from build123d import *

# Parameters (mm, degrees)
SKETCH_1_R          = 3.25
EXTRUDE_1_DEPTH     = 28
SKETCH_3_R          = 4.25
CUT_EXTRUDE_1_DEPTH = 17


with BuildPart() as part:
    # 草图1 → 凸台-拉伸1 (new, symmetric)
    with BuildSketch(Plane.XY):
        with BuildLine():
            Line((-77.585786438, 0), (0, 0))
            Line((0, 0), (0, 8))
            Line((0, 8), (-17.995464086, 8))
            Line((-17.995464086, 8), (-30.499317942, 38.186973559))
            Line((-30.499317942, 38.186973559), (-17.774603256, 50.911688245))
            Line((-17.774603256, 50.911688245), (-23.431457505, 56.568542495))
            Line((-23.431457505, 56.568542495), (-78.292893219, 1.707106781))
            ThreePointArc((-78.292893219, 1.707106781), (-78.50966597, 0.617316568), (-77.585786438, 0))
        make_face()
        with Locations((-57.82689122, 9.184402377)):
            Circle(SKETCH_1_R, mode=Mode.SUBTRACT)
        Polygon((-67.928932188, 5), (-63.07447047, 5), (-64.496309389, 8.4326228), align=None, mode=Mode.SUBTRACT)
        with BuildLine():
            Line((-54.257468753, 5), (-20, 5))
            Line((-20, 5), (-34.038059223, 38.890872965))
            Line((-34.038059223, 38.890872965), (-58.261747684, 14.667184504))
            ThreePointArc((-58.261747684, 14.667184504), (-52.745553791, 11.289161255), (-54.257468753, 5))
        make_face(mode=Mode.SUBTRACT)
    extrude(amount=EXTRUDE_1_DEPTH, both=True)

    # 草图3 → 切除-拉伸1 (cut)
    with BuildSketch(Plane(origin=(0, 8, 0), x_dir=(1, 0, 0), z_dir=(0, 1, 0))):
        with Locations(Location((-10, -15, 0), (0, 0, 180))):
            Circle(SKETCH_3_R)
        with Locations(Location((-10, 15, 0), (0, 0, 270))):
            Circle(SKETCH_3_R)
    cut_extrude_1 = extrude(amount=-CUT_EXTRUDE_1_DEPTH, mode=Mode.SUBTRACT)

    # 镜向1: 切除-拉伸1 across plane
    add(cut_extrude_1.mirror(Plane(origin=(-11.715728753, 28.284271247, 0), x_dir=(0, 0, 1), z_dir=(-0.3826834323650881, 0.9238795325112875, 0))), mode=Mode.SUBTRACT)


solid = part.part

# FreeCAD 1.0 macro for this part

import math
import FreeCAD as App
import Part
import Sketcher
from FreeCAD import Vector
Q = App.Units.Quantity

doc = App.newDocument("Part")
params = doc.addObject("Spreadsheet::Sheet", "Params")
for row, (alias, value) in enumerate([
    ("sketch1_radius", "1 mm"),
    ("sketch1_diameter", "6.5 mm"),
    ("sketch1_radius2", "5.5 mm"),
    ("sketch1_height", "8 mm"),
    ("sketch1_length", "8 mm"),
    ("pad1_length", "56 mm"),
    ("sketch2_diameter", "8.5 mm"),
    ("pocket1_length", "17 mm"),
], start=1):
    params.set(f"A{row}", alias)
    params.set(f"B{row}", "=" + value)
    params.setAlias(f"B{row}", alias)

body = doc.addObject("PartDesign::Body", "Body")

sketch1 = body.newObject("Sketcher::SketchObject", "Sketch")
sketch1.AttachmentSupport = (doc.getObject("XY_Plane"), [""])
sketch1.MapMode = "FlatFace"
sketch1.addGeometry(Part.LineSegment(Vector(-77.585786, 0, 0), Vector(0, 0, 0)), False)
sketch1.addGeometry(Part.LineSegment(Vector(0, 0, 0), Vector(0, 8, 0)), False)
sketch1.addGeometry(Part.LineSegment(Vector(0, 8, 0), Vector(-17.995464, 8, 0)), False)
sketch1.addGeometry(Part.LineSegment(Vector(-17.995464, 8, 0), Vector(-30.499318, 38.186974, 0)), False)
sketch1.addGeometry(Part.LineSegment(Vector(-30.499318, 38.186974, 0), Vector(-17.774603, 50.911688, 0)), False)
sketch1.addGeometry(Part.LineSegment(Vector(-17.774603, 50.911688, 0), Vector(-23.431458, 56.568542, 0)), False)
sketch1.addGeometry(Part.LineSegment(Vector(-23.431458, 56.568542, 0), Vector(-78.292893, 1.707107, 0)), False)
sketch1.addGeometry(Part.ArcOfCircle(Part.Circle(Vector(-77.585786, 1, 0), Vector(0, 0, 1), 1), math.radians(135), math.radians(270)), False)
sketch1.addGeometry(Part.LineSegment(Vector(-63.07447, 5, 0), Vector(-67.928932, 5, 0)), False)
sketch1.addGeometry(Part.LineSegment(Vector(-67.928932, 5, 0), Vector(-64.496309, 8.432623, 0)), False)
sketch1.addGeometry(Part.LineSegment(Vector(-64.496309, 8.432623, 0), Vector(-63.07447, 5, 0)), False)
sketch1.addGeometry(Part.Circle(Vector(-57.826891, 9.184402, 0), Vector(0, 0, 1), 3.25), False)
sketch1.addGeometry(Part.LineSegment(Vector(-20, 5, 0), Vector(-54.257469, 5, 0)), False)
sketch1.addGeometry(Part.ArcOfCircle(Part.Circle(Vector(-57.826891, 9.184402, 0), Vector(0, 0, 1), 5.5), math.radians(-49.534813), math.radians(94.534813)), False)
sketch1.addGeometry(Part.LineSegment(Vector(-58.261748, 14.667185, 0), Vector(-34.038059, 38.890873, 0)), False)
sketch1.addGeometry(Part.LineSegment(Vector(-34.038059, 38.890873, 0), Vector(-20, 5, 0)), False)
sketch1.addConstraint(Sketcher.Constraint("Coincident", 0, 2, 1, 1))
sketch1.addConstraint(Sketcher.Constraint("Coincident", 1, 2, 2, 1))
sketch1.addConstraint(Sketcher.Constraint("Coincident", 2, 2, 3, 1))
sketch1.addConstraint(Sketcher.Constraint("Coincident", 3, 2, 4, 1))
sketch1.addConstraint(Sketcher.Constraint("Coincident", 4, 2, 5, 1))
sketch1.addConstraint(Sketcher.Constraint("Coincident", 5, 2, 6, 1))
sketch1.addConstraint(Sketcher.Constraint("Tangent", 6, 2, 7, 1))
sketch1.addConstraint(Sketcher.Constraint("Tangent", 7, 2, 0, 1))
sketch1.addConstraint(Sketcher.Constraint("Coincident", 8, 2, 9, 1))
sketch1.addConstraint(Sketcher.Constraint("Coincident", 9, 2, 10, 1))
sketch1.addConstraint(Sketcher.Constraint("Coincident", 10, 2, 8, 1))
sketch1.addConstraint(Sketcher.Constraint("Coincident", 12, 2, 13, 1))
sketch1.addConstraint(Sketcher.Constraint("Coincident", 13, 2, 14, 1))
sketch1.addConstraint(Sketcher.Constraint("Coincident", 14, 2, 15, 1))
sketch1.addConstraint(Sketcher.Constraint("Coincident", 15, 2, 12, 1))
sketch1.addConstraint(Sketcher.Constraint("Horizontal", 0))
sketch1.addConstraint(Sketcher.Constraint("Vertical", 1))
sketch1.addConstraint(Sketcher.Constraint("Horizontal", 2))
sketch1.addConstraint(Sketcher.Constraint("Horizontal", 8))
sketch1.addConstraint(Sketcher.Constraint("Horizontal", 12))
sketch1.addConstraint(Sketcher.Constraint("Coincident", 0, 2, -1, 1))
sketch1.addConstraint(Sketcher.Constraint("Coincident", 13, 3, 11, 3))
sketch1.addConstraint(Sketcher.Constraint("Perpendicular", 4, 5))
sketch1.addConstraint(Sketcher.Constraint("Perpendicular", 5, 6))
sketch1.addConstraint(Sketcher.Constraint("Parallel", 6, 9))
sketch1.addConstraint(Sketcher.Constraint("Parallel", 3, 10))
sketch1.addConstraint(Sketcher.Constraint("Parallel", 9, 14))
sketch1.addConstraint(Sketcher.Constraint("Parallel", 10, 15))
sketch1.addConstraint(Sketcher.Constraint("Horizontal", 10, 2, 12, 2))
sketch1.addConstraint(Sketcher.Constraint("Radius", 7, 1.0))
sketch1.addConstraint(Sketcher.Constraint("Diameter", 11, 6.5))
sketch1.addConstraint(Sketcher.Constraint("Radius", 13, 5.5))
sketch1.addConstraint(Sketcher.Constraint("DistanceY", 1, 1, 1, 2, 8.0))
sketch1.addConstraint(Sketcher.Constraint("Angle", 4, Q("45 deg")))
sketch1.addConstraint(Sketcher.Constraint("Distance", 5, 8.0))
sketch1.addConstraint(Sketcher.Constraint("DistanceY", -1, 1, 8, 2, 5.0))
sketch1.addConstraint(Sketcher.Constraint("DistanceX", 15, 2, -1, 1, 20.0))
sketch1.addConstraint(Sketcher.Constraint("Angle", 3, Q("112.5 deg")))
sketch1.addConstraint(Sketcher.Constraint("DistanceX", 6, 2, 11, 3, 20.466002))
sketch1.addConstraint(Sketcher.Constraint("DistanceX", 10, 2, 12, 2, 8.817002))
sketch1.addConstraint(Sketcher.Constraint("DistanceX", 8, 2, 8, 1, 4.854462))
sketch1.addConstraint(Sketcher.Constraint("DistanceX", 12, 2, 12, 1, 34.257469))
sketch1.addConstraint(Sketcher.Constraint("DistanceY", 3, 2, 14, 2, 0.703899))
sketch1.addConstraint(Sketcher.Constraint("DistanceX", 14, 2, 5, 2, 10.606602))
sketch1.addConstraint(Sketcher.Constraint("Distance", 14, 34.257469))
sketch1.addConstraint(Sketcher.Constraint("DistanceX", 0, 1, 0, 2, 77.585786))
sketch1.setExpression("Constraints[29]", "Params.sketch1_radius")
sketch1.setExpression("Constraints[30]", "Params.sketch1_diameter")
sketch1.setExpression("Constraints[31]", "Params.sketch1_radius2")
sketch1.setExpression("Constraints[32]", "Params.sketch1_height")
sketch1.setExpression("Constraints[34]", "Params.sketch1_length")
pad1 = body.newObject("PartDesign::Pad", "Pad")
pad1.Profile = sketch1
pad1.setExpression("Length", "Params.pad1_length")
pad1.Midplane = True

sketch2 = body.newObject("Sketcher::SketchObject", "Sketch001")
sketch2.AttachmentSupport = (doc.getObject("XZ_Plane"), [""])
sketch2.MapMode = "FlatFace"
sketch2.AttachmentOffset = App.Placement(Vector(0, 0, -8), App.Rotation())
sketch2.addGeometry(Part.Circle(Vector(-10, 15, 0), Vector(0, 0, 1), 4.25), False)
sketch2.addGeometry(Part.Circle(Vector(-10, -15, 0), Vector(0, 0, 1), 4.25), False)
sketch2.addConstraint(Sketcher.Constraint("Equal", 0, 1))
sketch2.addConstraint(Sketcher.Constraint("Symmetric", 0, 3, 1, 3, -1))
sketch2.addConstraint(Sketcher.Constraint("Diameter", 0, 8.5))
sketch2.addConstraint(Sketcher.Constraint("DistanceX", 0, 3, -1, 1, 10.0))
sketch2.addConstraint(Sketcher.Constraint("DistanceY", -1, 1, 0, 3, 15.0))
sketch2.setExpression("Constraints[2]", "Params.sketch2_diameter")
pocket1 = body.newObject("PartDesign::Pocket", "Pocket")
pocket1.Profile = sketch2
pocket1.setExpression("Length", "Params.pocket1_length")
pocket1.Reversed = True
doc.recompute()

datumplane = body.newObject("PartDesign::Plane", "DatumPlane")
datumplane.Placement = App.Placement(Vector(-11.715729, 28.284271, 0), App.Rotation(Vector(0.923879533, 0.382683432, 0), Vector(0, 0, -1), Vector(-0.382683432, 0.923879533, 0), "ZXY"))
mirrored = body.newObject("PartDesign::Mirrored", "Mirrored")
mirrored.Originals = [pocket1]
mirrored.MirrorPlane = (datumplane, [""])
body.Tip = mirrored

doc.recompute()
